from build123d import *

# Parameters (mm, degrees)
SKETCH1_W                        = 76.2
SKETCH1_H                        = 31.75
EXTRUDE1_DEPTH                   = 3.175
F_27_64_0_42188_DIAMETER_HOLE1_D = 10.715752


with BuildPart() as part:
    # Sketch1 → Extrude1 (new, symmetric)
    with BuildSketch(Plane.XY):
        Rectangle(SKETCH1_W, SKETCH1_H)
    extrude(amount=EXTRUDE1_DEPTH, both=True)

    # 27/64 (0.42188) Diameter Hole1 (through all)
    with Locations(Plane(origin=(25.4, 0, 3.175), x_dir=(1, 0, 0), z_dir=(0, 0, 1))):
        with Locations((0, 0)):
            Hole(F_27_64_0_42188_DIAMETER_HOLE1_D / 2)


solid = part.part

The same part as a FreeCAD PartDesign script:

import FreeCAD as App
import Part
import Sketcher

V = App.Vector
Q = App.Units.Quantity

doc = App.newDocument("Part")
body = doc.addObject("PartDesign::Body", "Body")

sketch1 = body.newObject("Sketcher::SketchObject", "Sketch")
sketch1.AttachmentSupport = (doc.getObject("XY_Plane"), [""])
sketch1.MapMode = "FlatFace"
sketch1.addGeometry([
    Part.LineSegment(V(-38.1, 15.875, 0), V(-38.1, -15.875, 0)),
    Part.LineSegment(V(-38.1, -15.875, 0), V(38.1, -15.875, 0)),
    Part.LineSegment(V(38.1, -15.875, 0), V(38.1, 15.875, 0)),
    Part.LineSegment(V(38.1, 15.875, 0), V(-38.1, 15.875, 0)),
], False)
sketch1.addConstraint([
    Sketcher.Constraint("Coincident", 0, 2, 1, 1),
    Sketcher.Constraint("Coincident", 1, 2, 2, 1),
    Sketcher.Constraint("Coincident", 2, 2, 3, 1),
    Sketcher.Constraint("Coincident", 3, 2, 0, 1),
    Sketcher.Constraint("Vertical", 0),
    Sketcher.Constraint("Horizontal", 1),
    Sketcher.Constraint("Vertical", 2),
    Sketcher.Constraint("Horizontal", 3),
    Sketcher.Constraint("Symmetric", 0, 2, 2, 2, -1, 1),
    Sketcher.Constraint("DistanceX", 1, 1, 1, 2, Q("3 in")),
    Sketcher.Constraint("DistanceY", 0, 2, 0, 1, Q("1.25 in")),
])
pad1 = body.newObject("PartDesign::Pad", "Pad")
pad1.Profile = sketch1
pad1.Length = Q("0.25 in")
pad1.Midplane = True

sketch2 = body.newObject("Sketcher::SketchObject", "Sketch001")
sketch2.AttachmentSupport = (doc.getObject("XY_Plane"), [""])
sketch2.MapMode = "FlatFace"
sketch2.AttachmentOffset = App.Placement(V(0, 0, 0.125 * 25.4), App.Rotation())
sketch2.addGeometry(Part.Circle(V(25.4, 0, 0), V(0, 0, 1), 5.357876), False)
sketch2.addConstraint([
    Sketcher.Constraint("PointOnObject", 0, 3, -1),
    Sketcher.Constraint("DistanceX", -1, 1, 0, 3, Q("1 in")),
    Sketcher.Constraint("Diameter", 0, 10.715752),
])
doc.recompute()
hole = body.newObject("PartDesign::Hole", "Hole")
hole.Profile = sketch2
hole.ThreadType = "None"
hole.Diameter = 10.715752
hole.DepthType = "ThroughAll"

doc.recompute()
